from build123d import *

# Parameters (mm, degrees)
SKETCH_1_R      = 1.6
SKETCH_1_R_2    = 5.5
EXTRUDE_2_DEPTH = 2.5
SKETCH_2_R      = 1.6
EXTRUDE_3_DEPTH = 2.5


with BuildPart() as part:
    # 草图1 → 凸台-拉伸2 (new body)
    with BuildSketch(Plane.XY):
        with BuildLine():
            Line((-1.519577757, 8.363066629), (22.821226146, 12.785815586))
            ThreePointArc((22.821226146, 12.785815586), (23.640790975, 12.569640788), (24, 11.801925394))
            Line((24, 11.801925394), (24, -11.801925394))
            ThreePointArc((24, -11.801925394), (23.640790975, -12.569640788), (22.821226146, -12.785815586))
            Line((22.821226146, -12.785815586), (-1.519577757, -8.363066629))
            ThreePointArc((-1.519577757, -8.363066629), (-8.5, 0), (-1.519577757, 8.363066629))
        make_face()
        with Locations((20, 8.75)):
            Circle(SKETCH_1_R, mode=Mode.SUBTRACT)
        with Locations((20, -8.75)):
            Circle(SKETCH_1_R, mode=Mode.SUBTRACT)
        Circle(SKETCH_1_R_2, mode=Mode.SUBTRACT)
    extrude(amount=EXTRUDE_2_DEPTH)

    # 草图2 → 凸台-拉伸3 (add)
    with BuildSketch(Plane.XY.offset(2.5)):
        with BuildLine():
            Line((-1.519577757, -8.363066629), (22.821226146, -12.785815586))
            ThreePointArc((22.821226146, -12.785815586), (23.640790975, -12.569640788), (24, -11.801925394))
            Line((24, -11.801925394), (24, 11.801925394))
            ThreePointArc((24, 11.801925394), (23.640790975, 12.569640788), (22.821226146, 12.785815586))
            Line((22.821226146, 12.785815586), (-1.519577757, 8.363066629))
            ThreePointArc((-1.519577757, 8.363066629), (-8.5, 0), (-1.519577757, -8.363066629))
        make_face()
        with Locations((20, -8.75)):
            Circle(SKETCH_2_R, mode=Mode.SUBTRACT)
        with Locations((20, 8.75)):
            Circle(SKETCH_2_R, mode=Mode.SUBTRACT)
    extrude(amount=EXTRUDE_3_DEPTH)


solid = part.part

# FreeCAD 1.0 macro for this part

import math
import FreeCAD as App
import Part
import Sketcher

doc = App.newDocument("Part")
body = doc.addObject("PartDesign::Body", "Body")

sketch1 = body.newObject("Sketcher::SketchObject", "Sketch")
sketch1.AttachmentSupport = (doc.getObject("XY_Plane"), [""])
sketch1.MapMode = "FlatFace"
sketch1.addGeometry([
    Part.LineSegment(App.Vector(22.821226, 12.785816, 0), App.Vector(-1.519578, 8.363067, 0)),
    Part.ArcOfCircle(Part.Circle(App.Vector(0, 0, 0), App.Vector(0, 0, 1), 8.5), math.radians(100.298348), math.radians(259.701652)),
    Part.LineSegment(App.Vector(-1.519578, -8.363067, 0), App.Vector(22.821226, -12.785816, 0)),
    Part.ArcOfCircle(Part.Circle(App.Vector(23, -11.801925, 0), App.Vector(0, 0, 1), 1), math.radians(-100.298348), math.radians(0)),
    Part.LineSegment(App.Vector(24, -11.801925, 0), App.Vector(24, 11.801925, 0)),
    Part.ArcOfCircle(Part.Circle(App.Vector(23, 11.801925, 0), App.Vector(0, 0, 1), 1), math.radians(0), math.radians(100.298348)),
    Part.Circle(App.Vector(20, -8.75, 0), App.Vector(0, 0, 1), 1.6),
    Part.Circle(App.Vector(20, 8.75, 0), App.Vector(0, 0, 1), 1.6),
    Part.Circle(App.Vector(0, 0, 0), App.Vector(0, 0, 1), 5.5),
], False)
sketch1.addConstraint([
    Sketcher.Constraint("Tangent", 0, 2, 1, 1),
    Sketcher.Constraint("Tangent", 1, 2, 2, 1),
    Sketcher.Constraint("Tangent", 2, 2, 3, 1),
    Sketcher.Constraint("Tangent", 3, 2, 4, 1),
    Sketcher.Constraint("Tangent", 4, 2, 5, 1),
    Sketcher.Constraint("Tangent", 5, 2, 0, 1),
    Sketcher.Constraint("Vertical", 4),
    Sketcher.Constraint("Coincident", 1, 3, -1, 1),
    Sketcher.Constraint("Coincident", 8, 3, -1, 1),
    Sketcher.Constraint("Equal", 3, 5),
    Sketcher.Constraint("Equal", 6, 7),
    Sketcher.Constraint("Symmetric", 6, 3, 7, 3, -1),
    Sketcher.Constraint("Vertical", 0, 2, 1, 2),
    Sketcher.Constraint("Diameter", 8, 11.0),
    Sketcher.Constraint("Radius", 3, 1.0),
    Sketcher.Constraint("Diameter", 6, 3.2),
    Sketcher.Constraint("Radius", 1, 8.5),
    Sketcher.Constraint("DistanceX", -1, 1, 3, 3, 23.0),
    Sketcher.Constraint("DistanceX", -1, 1, 6, 3, 20.0),
    Sketcher.Constraint("DistanceY", 6, 3, 7, 3, 17.5),
    Sketcher.Constraint("DistanceY", 4, 1, 4, 2, 23.603851),
])
pad1 = body.newObject("PartDesign::Pad", "Pad")
pad1.Profile = sketch1
pad1.Length = 2.5

sketch2 = body.newObject("Sketcher::SketchObject", "Sketch001")
sketch2.AttachmentSupport = (doc.getObject("XY_Plane"), [""])
sketch2.MapMode = "FlatFace"
sketch2.AttachmentOffset = App.Placement(App.Vector(0, 0, 2.5), App.Rotation())
sketch2.addGeometry([
    Part.LineSegment(App.Vector(-1.519578, -8.363067, 0), App.Vector(22.821226, -12.785816, 0)),
    Part.ArcOfCircle(Part.Circle(App.Vector(23, -11.801925, 0), App.Vector(0, 0, 1), 1), math.radians(-100.298348), math.radians(0)),
    Part.LineSegment(App.Vector(24, -11.801925, 0), App.Vector(24, 11.801925, 0)),
    Part.ArcOfCircle(Part.Circle(App.Vector(23, 11.801925, 0), App.Vector(0, 0, 1), 1), math.radians(0), math.radians(100.298348)),
    Part.LineSegment(App.Vector(22.821226, 12.785816, 0), App.Vector(-1.519578, 8.363067, 0)),
    Part.ArcOfCircle(Part.Circle(App.Vector(0, 0, 0), App.Vector(0, 0, 1), 8.5), math.radians(100.298348), math.radians(259.701652)),
    Part.Circle(App.Vector(20, -8.75, 0), App.Vector(0, 0, 1), 1.6),
    Part.Circle(App.Vector(20, 8.75, 0), App.Vector(0, 0, 1), 1.6),
], False)
sketch2.addConstraint([
    Sketcher.Constraint("Tangent", 0, 2, 1, 1),
    Sketcher.Constraint("Tangent", 1, 2, 2, 1),
    Sketcher.Constraint("Tangent", 2, 2, 3, 1),
    Sketcher.Constraint("Tangent", 3, 2, 4, 1),
    Sketcher.Constraint("Tangent", 4, 2, 5, 1),
    Sketcher.Constraint("Tangent", 5, 2, 0, 1),
    Sketcher.Constraint("Vertical", 2),
    Sketcher.Constraint("Coincident", 5, 3, -1, 1),
    Sketcher.Constraint("Equal", 1, 3),
    Sketcher.Constraint("Equal", 6, 7),
    Sketcher.Constraint("Symmetric", 6, 3, 7, 3, -1),
    Sketcher.Constraint("Vertical", 0, 2, 3, 2),
    Sketcher.Constraint("Radius", 1, 1.0),
    Sketcher.Constraint("Diameter", 6, 3.2),
    Sketcher.Constraint("Radius", 5, 8.5),
    Sketcher.Constraint("DistanceX", -1, 1, 1, 3, 23.0),
    Sketcher.Constraint("DistanceX", -1, 1, 6, 3, 20.0),
    Sketcher.Constraint("DistanceY", 6, 3, 7, 3, 17.5),
    Sketcher.Constraint("DistanceY", 2, 1, 2, 2, 23.603851),
])
pad2 = body.newObject("PartDesign::Pad", "Pad001")
pad2.Profile = sketch2
pad2.Length = 2.5

doc.recompute()
